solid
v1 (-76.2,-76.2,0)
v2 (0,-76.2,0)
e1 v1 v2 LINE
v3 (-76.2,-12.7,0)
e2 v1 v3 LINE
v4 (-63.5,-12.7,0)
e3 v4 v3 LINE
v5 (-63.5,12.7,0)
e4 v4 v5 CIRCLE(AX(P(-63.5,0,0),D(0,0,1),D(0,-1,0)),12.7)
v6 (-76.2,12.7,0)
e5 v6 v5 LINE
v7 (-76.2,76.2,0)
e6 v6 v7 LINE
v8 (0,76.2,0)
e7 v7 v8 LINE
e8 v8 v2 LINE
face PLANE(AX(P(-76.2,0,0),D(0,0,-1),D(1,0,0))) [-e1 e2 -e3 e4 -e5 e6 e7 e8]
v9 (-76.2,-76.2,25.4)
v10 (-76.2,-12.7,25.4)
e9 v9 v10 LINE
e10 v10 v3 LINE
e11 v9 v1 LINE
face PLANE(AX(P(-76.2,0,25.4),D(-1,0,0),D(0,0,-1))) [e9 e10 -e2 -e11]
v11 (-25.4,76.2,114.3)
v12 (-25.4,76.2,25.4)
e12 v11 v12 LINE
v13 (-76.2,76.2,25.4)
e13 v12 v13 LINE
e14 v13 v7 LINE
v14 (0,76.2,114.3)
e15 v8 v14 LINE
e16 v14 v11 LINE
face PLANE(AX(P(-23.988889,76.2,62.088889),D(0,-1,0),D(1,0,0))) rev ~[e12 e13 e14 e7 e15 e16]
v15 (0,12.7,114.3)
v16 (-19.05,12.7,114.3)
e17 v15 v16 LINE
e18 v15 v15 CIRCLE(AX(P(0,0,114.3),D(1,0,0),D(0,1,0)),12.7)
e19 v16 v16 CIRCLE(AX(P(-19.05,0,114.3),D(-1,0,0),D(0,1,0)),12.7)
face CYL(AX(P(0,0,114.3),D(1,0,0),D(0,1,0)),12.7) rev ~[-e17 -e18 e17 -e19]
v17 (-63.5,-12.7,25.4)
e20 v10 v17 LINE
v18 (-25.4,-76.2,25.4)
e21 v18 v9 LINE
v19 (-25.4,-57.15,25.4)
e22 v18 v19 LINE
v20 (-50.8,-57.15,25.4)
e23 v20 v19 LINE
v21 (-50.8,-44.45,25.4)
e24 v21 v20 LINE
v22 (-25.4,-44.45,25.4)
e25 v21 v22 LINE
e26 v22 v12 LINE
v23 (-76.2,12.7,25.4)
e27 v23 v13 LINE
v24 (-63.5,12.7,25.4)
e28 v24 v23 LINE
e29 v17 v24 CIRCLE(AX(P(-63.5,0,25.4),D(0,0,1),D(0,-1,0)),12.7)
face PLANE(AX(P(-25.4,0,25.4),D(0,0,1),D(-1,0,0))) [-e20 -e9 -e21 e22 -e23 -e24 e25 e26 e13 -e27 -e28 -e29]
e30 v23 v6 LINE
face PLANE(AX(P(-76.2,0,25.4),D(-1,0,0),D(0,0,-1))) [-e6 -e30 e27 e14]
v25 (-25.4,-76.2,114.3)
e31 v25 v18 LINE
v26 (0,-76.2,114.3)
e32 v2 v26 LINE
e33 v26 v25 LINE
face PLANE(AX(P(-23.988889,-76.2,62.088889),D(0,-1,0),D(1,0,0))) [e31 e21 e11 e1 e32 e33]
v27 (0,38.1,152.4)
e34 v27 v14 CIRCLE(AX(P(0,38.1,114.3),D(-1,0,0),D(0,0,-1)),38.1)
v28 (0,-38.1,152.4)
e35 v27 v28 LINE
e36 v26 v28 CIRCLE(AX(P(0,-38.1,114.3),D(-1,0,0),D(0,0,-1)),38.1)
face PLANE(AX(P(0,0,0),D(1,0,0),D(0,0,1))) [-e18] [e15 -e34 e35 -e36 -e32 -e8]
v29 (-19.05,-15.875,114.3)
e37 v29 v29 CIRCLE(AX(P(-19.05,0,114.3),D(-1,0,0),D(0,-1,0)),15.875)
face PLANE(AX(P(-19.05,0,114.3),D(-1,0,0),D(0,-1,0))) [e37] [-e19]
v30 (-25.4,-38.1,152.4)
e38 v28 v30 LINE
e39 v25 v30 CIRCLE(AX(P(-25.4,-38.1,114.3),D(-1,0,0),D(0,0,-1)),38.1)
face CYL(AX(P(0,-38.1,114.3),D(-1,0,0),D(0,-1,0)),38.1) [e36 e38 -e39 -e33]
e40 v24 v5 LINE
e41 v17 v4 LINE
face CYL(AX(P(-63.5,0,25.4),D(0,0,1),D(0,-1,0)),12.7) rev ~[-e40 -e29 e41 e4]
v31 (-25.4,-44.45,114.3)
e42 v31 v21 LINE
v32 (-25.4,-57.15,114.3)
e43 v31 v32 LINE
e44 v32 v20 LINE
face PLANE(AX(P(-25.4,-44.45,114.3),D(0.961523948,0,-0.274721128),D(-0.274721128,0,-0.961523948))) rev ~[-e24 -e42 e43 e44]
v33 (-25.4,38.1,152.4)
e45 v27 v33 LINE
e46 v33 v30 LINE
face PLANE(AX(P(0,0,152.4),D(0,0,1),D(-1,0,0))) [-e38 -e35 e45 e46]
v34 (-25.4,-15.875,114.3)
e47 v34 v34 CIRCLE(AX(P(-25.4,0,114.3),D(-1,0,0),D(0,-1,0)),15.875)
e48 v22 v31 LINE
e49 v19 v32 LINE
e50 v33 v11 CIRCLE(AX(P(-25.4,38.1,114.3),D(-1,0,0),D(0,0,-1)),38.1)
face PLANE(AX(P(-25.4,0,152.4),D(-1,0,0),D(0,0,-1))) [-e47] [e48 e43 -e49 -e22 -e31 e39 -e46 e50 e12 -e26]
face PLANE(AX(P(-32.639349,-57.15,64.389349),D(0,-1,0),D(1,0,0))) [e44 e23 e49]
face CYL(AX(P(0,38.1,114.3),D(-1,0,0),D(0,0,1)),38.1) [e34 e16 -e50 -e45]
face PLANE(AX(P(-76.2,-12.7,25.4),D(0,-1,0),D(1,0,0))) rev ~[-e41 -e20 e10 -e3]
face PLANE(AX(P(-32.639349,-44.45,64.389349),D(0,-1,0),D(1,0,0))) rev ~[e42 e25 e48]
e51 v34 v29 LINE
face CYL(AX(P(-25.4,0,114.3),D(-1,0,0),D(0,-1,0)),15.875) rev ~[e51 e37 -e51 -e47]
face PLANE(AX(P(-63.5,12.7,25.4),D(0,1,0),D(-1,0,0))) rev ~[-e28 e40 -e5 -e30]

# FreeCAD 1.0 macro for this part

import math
import FreeCAD as App
import Part
import Sketcher
Q = App.Units.Quantity


def edges_at(feature, points):
    """Names of the edges that pass closest to the given points."""
    edges = feature.Shape.Edges
    near = lambda p: min(range(len(edges)), key=lambda i: edges[i].distToShape(Part.Vertex(*p))[0])
    return sorted({f"Edge{near(p) + 1}" for p in points})

doc = App.newDocument("Part")
params = doc.addObject("Spreadsheet::Sheet", "Params")
for row, (alias, value) in enumerate([
    ("sketch1_width", "3 in"),
    ("sketch1_width2", "1 in"),
    ("sketch1_height", "6 in"),
    ("pad1_length", "6 in"),
    ("sketch2_diameter", "1 in"),
    ("sketch3_radius", "0.5 in"),
    ("sketch3_width", "0.5 in"),
    ("fillet_radius", "1.5 in"),
    ("fillet2_radius", "1.5 in"),
    ("sketch4_diameter", "1 in"),
    ("sketch4_diameter2", "1.25 in"),
    ("pocket3_length", "0.25 in"),
    ("sketch5_width", "1 in"),
    ("sketch5_height", "3.5 in"),
    ("pad2_length", "0.5 in"),
], start=1):
    params.set(f"A{row}", alias)
    params.set(f"B{row}", "=" + value)
    params.setAlias(f"B{row}", alias)

body = doc.addObject("PartDesign::Body", "Body")

sketch1 = doc.addObject("Sketcher::SketchObject", "Sketch")
body.addObject(sketch1)
sketch1.AttachmentSupport = (doc.XZ_Plane, [""])
sketch1.MapMode = "FlatFace"
sketch1.addGeometry(Part.LineSegment(App.Vector(-76, 0, 0), App.Vector(0, 0, 0)), False)
sketch1.addGeometry(Part.LineSegment(App.Vector(0, 0, 0), App.Vector(0, 152, 0)), False)
sketch1.addGeometry(Part.LineSegment(App.Vector(0, 152, 0), App.Vector(-25, 152, 0)), False)
sketch1.addGeometry(Part.LineSegment(App.Vector(-25, 152, 0), App.Vector(-25, 25, 0)), False)
sketch1.addGeometry(Part.LineSegment(App.Vector(-25, 25, 0), App.Vector(-76, 25, 0)), False)
sketch1.addGeometry(Part.LineSegment(App.Vector(-76, 25, 0), App.Vector(-76, 0, 0)), False)
sketch1.addConstraint(Sketcher.Constraint("Coincident", 0, 2, 1, 1))
sketch1.addConstraint(Sketcher.Constraint("Coincident", 1, 2, 2, 1))
sketch1.addConstraint(Sketcher.Constraint("Coincident", 2, 2, 3, 1))
sketch1.addConstraint(Sketcher.Constraint("Coincident", 3, 2, 4, 1))
sketch1.addConstraint(Sketcher.Constraint("Coincident", 4, 2, 5, 1))
sketch1.addConstraint(Sketcher.Constraint("Coincident", 5, 2, 0, 1))
sketch1.addConstraint(Sketcher.Constraint("Horizontal", 0))
sketch1.addConstraint(Sketcher.Constraint("Vertical", 1))
sketch1.addConstraint(Sketcher.Constraint("Horizontal", 2))
sketch1.addConstraint(Sketcher.Constraint("Vertical", 3))
sketch1.addConstraint(Sketcher.Constraint("Horizontal", 4))
sketch1.addConstraint(Sketcher.Constraint("Vertical", 5))
sketch1.addConstraint(Sketcher.Constraint("Coincident", 0, 2, -1, 1))
sketch1.addConstraint(Sketcher.Constraint("Equal", 2, 5))
sketch1.addConstraint(Sketcher.Constraint("DistanceX", 0, 1, 0, 2, Q("3 in")))
sketch1.addConstraint(Sketcher.Constraint("DistanceX", 2, 2, 2, 1, Q("1 in")))
sketch1.addConstraint(Sketcher.Constraint("DistanceY", 1, 1, 1, 2, Q("6 in")))
sketch1.setExpression("Constraints[14]", "Params.sketch1_width")
sketch1.setExpression("Constraints[15]", "Params.sketch1_width2")
sketch1.setExpression("Constraints[16]", "Params.sketch1_height")
pad1 = doc.addObject("PartDesign::Pad", "Pad")
body.addObject(pad1)
pad1.Profile = sketch1
pad1.setExpression("Length", "Params.pad1_length")
pad1.Midplane = True

sketch2 = doc.addObject("Sketcher::SketchObject", "Sketch001")
body.addObject(sketch2)
sketch2.AttachmentSupport = (doc.YZ_Plane, [""])
sketch2.MapMode = "FlatFace"
sketch2.addGeometry(Part.Circle(App.Vector(0, 114, 0), App.Vector(0, 0, 1), 13), False)
sketch2.addConstraint(Sketcher.Constraint("PointOnObject", 0, 3, -2))
sketch2.addConstraint(Sketcher.Constraint("Diameter", 0, Q("1 in")))
sketch2.addConstraint(Sketcher.Constraint("DistanceY", -1, 1, 0, 3, Q("4.5 in")))
sketch2.setExpression("Constraints[1]", "Params.sketch2_diameter")
pocket1 = doc.addObject("PartDesign::Pocket", "Pocket")
body.addObject(pocket1)
pocket1.Profile = sketch2
pocket1.Type = "ThroughAll"

sketch3 = doc.addObject("Sketcher::SketchObject", "Sketch002")
body.addObject(sketch3)
sketch3.AttachmentSupport = (doc.XY_Plane, [""])
sketch3.MapMode = "FlatFace"
sketch3.AttachmentOffset = App.Placement(App.Vector(0, 0, 1 * 25.4), App.Rotation())
sketch3.addGeometry(Part.LineSegment(App.Vector(-76, 13, 0), App.Vector(-76, -13, 0)), False)
sketch3.addGeometry(Part.LineSegment(App.Vector(-76, -13, 0), App.Vector(-64, -13, 0)), False)
sketch3.addGeometry(Part.ArcOfCircle(Part.Circle(App.Vector(-64, 0, 0), App.Vector(0, 0, 1), 13), math.radians(-90), math.radians(90)), False)
sketch3.addGeometry(Part.LineSegment(App.Vector(-64, 13, 0), App.Vector(-76, 13, 0)), False)
sketch3.addConstraint(Sketcher.Constraint("Coincident", 0, 2, 1, 1))
sketch3.addConstraint(Sketcher.Constraint("Tangent", 1, 2, 2, 1))
sketch3.addConstraint(Sketcher.Constraint("Tangent", 2, 2, 3, 1))
sketch3.addConstraint(Sketcher.Constraint("Coincident", 3, 2, 0, 1))
sketch3.addConstraint(Sketcher.Constraint("Vertical", 0))
sketch3.addConstraint(Sketcher.Constraint("Horizontal", 1))
sketch3.addConstraint(Sketcher.Constraint("Horizontal", 3))
sketch3.addConstraint(Sketcher.Constraint("PointOnObject", 2, 3, -1))
sketch3.addConstraint(Sketcher.Constraint("Radius", 2, Q("0.5 in")))
sketch3.addConstraint(Sketcher.Constraint("DistanceX", 1, 1, 1, 2, Q("0.5 in")))
sketch3.addConstraint(Sketcher.Constraint("DistanceX", 0, 2, -1, 1, Q("3 in")))
sketch3.setExpression("Constraints[8]", "Params.sketch3_radius")
sketch3.setExpression("Constraints[9]", "Params.sketch3_width")
pocket2 = doc.addObject("PartDesign::Pocket", "Pocket001")
body.addObject(pocket2)
pocket2.Profile = sketch3
pocket2.Type = "ThroughAll"
doc.recompute()

fillet = doc.addObject("PartDesign::Fillet", "Fillet")
body.addObject(fillet)
fillet.Base = (pocket2, edges_at(pocket2, [(-12.7, -76.2, 152.4)]))
fillet.setExpression("Radius", "Params.fillet_radius")
doc.recompute()

fillet2 = doc.addObject("PartDesign::Fillet", "Fillet001")
body.addObject(fillet2)
fillet2.Base = (fillet, edges_at(fillet, [(-12.7, 76.2, 152.4)]))
fillet2.setExpression("Radius", "Params.fillet2_radius")

sketch4 = doc.addObject("Sketcher::SketchObject", "Sketch003")
body.addObject(sketch4)
sketch4.AttachmentSupport = (doc.YZ_Plane, [""])
sketch4.MapMode = "FlatFace"
sketch4.AttachmentOffset = App.Placement(App.Vector(0, 0, -1 * 25.4), App.Rotation())
sketch4.addGeometry(Part.Circle(App.Vector(0, 114, 0), App.Vector(0, 0, 1), 16), False)
sketch4.addGeometry(Part.Circle(App.Vector(0, 114, 0), App.Vector(0, 0, 1), 13), False)
sketch4.addConstraint(Sketcher.Constraint("Coincident", 1, 3, 0, 3))
sketch4.addConstraint(Sketcher.Constraint("PointOnObject", 0, 3, -2))
sketch4.addConstraint(Sketcher.Constraint("Diameter", 1, Q("1 in")))
sketch4.addConstraint(Sketcher.Constraint("Diameter", 0, Q("1.25 in")))
sketch4.addConstraint(Sketcher.Constraint("DistanceY", -1, 1, 0, 3, Q("4.5 in")))
sketch4.setExpression("Constraints[2]", "Params.sketch4_diameter")
sketch4.setExpression("Constraints[3]", "Params.sketch4_diameter2")
pocket3 = doc.addObject("PartDesign::Pocket", "Pocket002")
body.addObject(pocket3)
pocket3.Profile = sketch4
pocket3.setExpression("Length", "Params.pocket3_length")
pocket3.Reversed = True

sketch5 = doc.addObject("Sketcher::SketchObject", "Sketch004")
body.addObject(sketch5)
sketch5.AttachmentSupport = (doc.XZ_Plane, [""])
sketch5.MapMode = "FlatFace"
sketch5.AttachmentOffset = App.Placement(App.Vector(0, 0, 1.75 * 25.4), App.Rotation())
sketch5.addGeometry(Part.LineSegment(App.Vector(-51, 25, 0), App.Vector(-25, 25, 0)), False)
sketch5.addGeometry(Part.LineSegment(App.Vector(-25, 25, 0), App.Vector(-25, 114, 0)), False)
sketch5.addGeometry(Part.LineSegment(App.Vector(-25, 114, 0), App.Vector(-51, 25, 0)), False)
sketch5.addConstraint(Sketcher.Constraint("Coincident", 0, 2, 1, 1))
sketch5.addConstraint(Sketcher.Constraint("Coincident", 1, 2, 2, 1))
sketch5.addConstraint(Sketcher.Constraint("Coincident", 2, 2, 0, 1))
sketch5.addConstraint(Sketcher.Constraint("Horizontal", 0))
sketch5.addConstraint(Sketcher.Constraint("Vertical", 1))
sketch5.addConstraint(Sketcher.Constraint("DistanceX", 0, 1, 0, 2, Q("1 in")))
sketch5.addConstraint(Sketcher.Constraint("DistanceY", 1, 1, 1, 2, Q("3.5 in")))
sketch5.addConstraint(Sketcher.Constraint("DistanceX", 0, 2, -1, 1, Q("1 in")))
sketch5.addConstraint(Sketcher.Constraint("DistanceY", -1, 1, 0, 2, Q("1 in")))
sketch5.setExpression("Constraints[5]", "Params.sketch5_width")
sketch5.setExpression("Constraints[6]", "Params.sketch5_height")
pad2 = doc.addObject("PartDesign::Pad", "Pad001")
body.addObject(pad2)
pad2.Profile = sketch5
pad2.setExpression("Length", "Params.pad2_length")

doc.recompute()
